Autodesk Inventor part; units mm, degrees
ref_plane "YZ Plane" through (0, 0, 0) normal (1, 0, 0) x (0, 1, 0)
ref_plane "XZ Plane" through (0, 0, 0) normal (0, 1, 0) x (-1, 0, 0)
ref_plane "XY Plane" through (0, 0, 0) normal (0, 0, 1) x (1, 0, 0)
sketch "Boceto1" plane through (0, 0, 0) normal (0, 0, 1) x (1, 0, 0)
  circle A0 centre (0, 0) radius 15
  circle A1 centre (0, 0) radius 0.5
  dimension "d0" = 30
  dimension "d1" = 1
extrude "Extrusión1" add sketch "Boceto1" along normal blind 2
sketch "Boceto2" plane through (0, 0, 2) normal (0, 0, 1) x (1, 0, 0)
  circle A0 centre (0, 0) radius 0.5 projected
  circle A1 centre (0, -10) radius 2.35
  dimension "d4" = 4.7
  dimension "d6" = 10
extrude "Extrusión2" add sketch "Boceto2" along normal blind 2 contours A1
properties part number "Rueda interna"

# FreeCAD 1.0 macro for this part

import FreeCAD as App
import Part
import Sketcher
Q = App.Units.Quantity

doc = App.newDocument("Part")
params = doc.addObject("Spreadsheet::Sheet", "Params")
for row, (alias, value) in enumerate([
    ("sketch1_diameter", "30 mm"),
    ("sketch1_diameter2", "1 mm"),
    ("pad1_length", "2 mm"),
    ("sketch2_diameter", "4.7 mm"),
    ("pad2_length", "2 mm"),
], start=1):
    params.set(f"A{row}", alias)
    params.set(f"B{row}", "=" + value)
    params.setAlias(f"B{row}", alias)

body = doc.addObject("PartDesign::Body", "Body")

# Sketch on XY plane
sketch1 = body.newObject("Sketcher::SketchObject", "Sketch")
sketch1.AttachmentSupport = (doc.getObject("XY_Plane"), [""])
sketch1.MapMode = "FlatFace"
sketch1.addGeometry(Part.Circle(App.Vector(0, 0, 0), App.Vector(0, 0, 1), 15), False)
sketch1.addGeometry(Part.Circle(App.Vector(0, 0, 0), App.Vector(0, 0, 1), 0.5), False)
sketch1.addConstraint(Sketcher.Constraint("Coincident", 0, 3, -1, 1))
sketch1.addConstraint(Sketcher.Constraint("Coincident", 1, 3, -1, 1))
sketch1.addConstraint(Sketcher.Constraint("Diameter", 0, Q("30 mm")))
sketch1.addConstraint(Sketcher.Constraint("Diameter", 1, Q("1 mm")))
sketch1.setExpression("Constraints[2]", "Params.sketch1_diameter")
sketch1.setExpression("Constraints[3]", "Params.sketch1_diameter2")
pad1 = body.newObject("PartDesign::Pad", "Pad")
pad1.Profile = sketch1
pad1.setExpression("Length", "Params.pad1_length")

# Sketch on XY plane
sketch2 = body.newObject("Sketcher::SketchObject", "Sketch001")
sketch2.AttachmentSupport = (doc.getObject("XY_Plane"), [""])
sketch2.MapMode = "FlatFace"
sketch2.AttachmentOffset = App.Placement(App.Vector(0, 0, 2), App.Rotation())
sketch2.addGeometry(Part.Circle(App.Vector(0, -10, 0), App.Vector(0, 0, 1), 2.35), False)
sketch2.addConstraint(Sketcher.Constraint("PointOnObject", 0, 3, -2))
sketch2.addConstraint(Sketcher.Constraint("Diameter", 0, Q("4.7 mm")))
sketch2.addConstraint(Sketcher.Constraint("DistanceY", 0, 3, -1, 1, Q("10 mm")))
sketch2.setExpression("Constraints[1]", "Params.sketch2_diameter")
pad2 = body.newObject("PartDesign::Pad", "Pad001")
pad2.Profile = sketch2
pad2.setExpression("Length", "Params.pad2_length")

doc.recompute()
